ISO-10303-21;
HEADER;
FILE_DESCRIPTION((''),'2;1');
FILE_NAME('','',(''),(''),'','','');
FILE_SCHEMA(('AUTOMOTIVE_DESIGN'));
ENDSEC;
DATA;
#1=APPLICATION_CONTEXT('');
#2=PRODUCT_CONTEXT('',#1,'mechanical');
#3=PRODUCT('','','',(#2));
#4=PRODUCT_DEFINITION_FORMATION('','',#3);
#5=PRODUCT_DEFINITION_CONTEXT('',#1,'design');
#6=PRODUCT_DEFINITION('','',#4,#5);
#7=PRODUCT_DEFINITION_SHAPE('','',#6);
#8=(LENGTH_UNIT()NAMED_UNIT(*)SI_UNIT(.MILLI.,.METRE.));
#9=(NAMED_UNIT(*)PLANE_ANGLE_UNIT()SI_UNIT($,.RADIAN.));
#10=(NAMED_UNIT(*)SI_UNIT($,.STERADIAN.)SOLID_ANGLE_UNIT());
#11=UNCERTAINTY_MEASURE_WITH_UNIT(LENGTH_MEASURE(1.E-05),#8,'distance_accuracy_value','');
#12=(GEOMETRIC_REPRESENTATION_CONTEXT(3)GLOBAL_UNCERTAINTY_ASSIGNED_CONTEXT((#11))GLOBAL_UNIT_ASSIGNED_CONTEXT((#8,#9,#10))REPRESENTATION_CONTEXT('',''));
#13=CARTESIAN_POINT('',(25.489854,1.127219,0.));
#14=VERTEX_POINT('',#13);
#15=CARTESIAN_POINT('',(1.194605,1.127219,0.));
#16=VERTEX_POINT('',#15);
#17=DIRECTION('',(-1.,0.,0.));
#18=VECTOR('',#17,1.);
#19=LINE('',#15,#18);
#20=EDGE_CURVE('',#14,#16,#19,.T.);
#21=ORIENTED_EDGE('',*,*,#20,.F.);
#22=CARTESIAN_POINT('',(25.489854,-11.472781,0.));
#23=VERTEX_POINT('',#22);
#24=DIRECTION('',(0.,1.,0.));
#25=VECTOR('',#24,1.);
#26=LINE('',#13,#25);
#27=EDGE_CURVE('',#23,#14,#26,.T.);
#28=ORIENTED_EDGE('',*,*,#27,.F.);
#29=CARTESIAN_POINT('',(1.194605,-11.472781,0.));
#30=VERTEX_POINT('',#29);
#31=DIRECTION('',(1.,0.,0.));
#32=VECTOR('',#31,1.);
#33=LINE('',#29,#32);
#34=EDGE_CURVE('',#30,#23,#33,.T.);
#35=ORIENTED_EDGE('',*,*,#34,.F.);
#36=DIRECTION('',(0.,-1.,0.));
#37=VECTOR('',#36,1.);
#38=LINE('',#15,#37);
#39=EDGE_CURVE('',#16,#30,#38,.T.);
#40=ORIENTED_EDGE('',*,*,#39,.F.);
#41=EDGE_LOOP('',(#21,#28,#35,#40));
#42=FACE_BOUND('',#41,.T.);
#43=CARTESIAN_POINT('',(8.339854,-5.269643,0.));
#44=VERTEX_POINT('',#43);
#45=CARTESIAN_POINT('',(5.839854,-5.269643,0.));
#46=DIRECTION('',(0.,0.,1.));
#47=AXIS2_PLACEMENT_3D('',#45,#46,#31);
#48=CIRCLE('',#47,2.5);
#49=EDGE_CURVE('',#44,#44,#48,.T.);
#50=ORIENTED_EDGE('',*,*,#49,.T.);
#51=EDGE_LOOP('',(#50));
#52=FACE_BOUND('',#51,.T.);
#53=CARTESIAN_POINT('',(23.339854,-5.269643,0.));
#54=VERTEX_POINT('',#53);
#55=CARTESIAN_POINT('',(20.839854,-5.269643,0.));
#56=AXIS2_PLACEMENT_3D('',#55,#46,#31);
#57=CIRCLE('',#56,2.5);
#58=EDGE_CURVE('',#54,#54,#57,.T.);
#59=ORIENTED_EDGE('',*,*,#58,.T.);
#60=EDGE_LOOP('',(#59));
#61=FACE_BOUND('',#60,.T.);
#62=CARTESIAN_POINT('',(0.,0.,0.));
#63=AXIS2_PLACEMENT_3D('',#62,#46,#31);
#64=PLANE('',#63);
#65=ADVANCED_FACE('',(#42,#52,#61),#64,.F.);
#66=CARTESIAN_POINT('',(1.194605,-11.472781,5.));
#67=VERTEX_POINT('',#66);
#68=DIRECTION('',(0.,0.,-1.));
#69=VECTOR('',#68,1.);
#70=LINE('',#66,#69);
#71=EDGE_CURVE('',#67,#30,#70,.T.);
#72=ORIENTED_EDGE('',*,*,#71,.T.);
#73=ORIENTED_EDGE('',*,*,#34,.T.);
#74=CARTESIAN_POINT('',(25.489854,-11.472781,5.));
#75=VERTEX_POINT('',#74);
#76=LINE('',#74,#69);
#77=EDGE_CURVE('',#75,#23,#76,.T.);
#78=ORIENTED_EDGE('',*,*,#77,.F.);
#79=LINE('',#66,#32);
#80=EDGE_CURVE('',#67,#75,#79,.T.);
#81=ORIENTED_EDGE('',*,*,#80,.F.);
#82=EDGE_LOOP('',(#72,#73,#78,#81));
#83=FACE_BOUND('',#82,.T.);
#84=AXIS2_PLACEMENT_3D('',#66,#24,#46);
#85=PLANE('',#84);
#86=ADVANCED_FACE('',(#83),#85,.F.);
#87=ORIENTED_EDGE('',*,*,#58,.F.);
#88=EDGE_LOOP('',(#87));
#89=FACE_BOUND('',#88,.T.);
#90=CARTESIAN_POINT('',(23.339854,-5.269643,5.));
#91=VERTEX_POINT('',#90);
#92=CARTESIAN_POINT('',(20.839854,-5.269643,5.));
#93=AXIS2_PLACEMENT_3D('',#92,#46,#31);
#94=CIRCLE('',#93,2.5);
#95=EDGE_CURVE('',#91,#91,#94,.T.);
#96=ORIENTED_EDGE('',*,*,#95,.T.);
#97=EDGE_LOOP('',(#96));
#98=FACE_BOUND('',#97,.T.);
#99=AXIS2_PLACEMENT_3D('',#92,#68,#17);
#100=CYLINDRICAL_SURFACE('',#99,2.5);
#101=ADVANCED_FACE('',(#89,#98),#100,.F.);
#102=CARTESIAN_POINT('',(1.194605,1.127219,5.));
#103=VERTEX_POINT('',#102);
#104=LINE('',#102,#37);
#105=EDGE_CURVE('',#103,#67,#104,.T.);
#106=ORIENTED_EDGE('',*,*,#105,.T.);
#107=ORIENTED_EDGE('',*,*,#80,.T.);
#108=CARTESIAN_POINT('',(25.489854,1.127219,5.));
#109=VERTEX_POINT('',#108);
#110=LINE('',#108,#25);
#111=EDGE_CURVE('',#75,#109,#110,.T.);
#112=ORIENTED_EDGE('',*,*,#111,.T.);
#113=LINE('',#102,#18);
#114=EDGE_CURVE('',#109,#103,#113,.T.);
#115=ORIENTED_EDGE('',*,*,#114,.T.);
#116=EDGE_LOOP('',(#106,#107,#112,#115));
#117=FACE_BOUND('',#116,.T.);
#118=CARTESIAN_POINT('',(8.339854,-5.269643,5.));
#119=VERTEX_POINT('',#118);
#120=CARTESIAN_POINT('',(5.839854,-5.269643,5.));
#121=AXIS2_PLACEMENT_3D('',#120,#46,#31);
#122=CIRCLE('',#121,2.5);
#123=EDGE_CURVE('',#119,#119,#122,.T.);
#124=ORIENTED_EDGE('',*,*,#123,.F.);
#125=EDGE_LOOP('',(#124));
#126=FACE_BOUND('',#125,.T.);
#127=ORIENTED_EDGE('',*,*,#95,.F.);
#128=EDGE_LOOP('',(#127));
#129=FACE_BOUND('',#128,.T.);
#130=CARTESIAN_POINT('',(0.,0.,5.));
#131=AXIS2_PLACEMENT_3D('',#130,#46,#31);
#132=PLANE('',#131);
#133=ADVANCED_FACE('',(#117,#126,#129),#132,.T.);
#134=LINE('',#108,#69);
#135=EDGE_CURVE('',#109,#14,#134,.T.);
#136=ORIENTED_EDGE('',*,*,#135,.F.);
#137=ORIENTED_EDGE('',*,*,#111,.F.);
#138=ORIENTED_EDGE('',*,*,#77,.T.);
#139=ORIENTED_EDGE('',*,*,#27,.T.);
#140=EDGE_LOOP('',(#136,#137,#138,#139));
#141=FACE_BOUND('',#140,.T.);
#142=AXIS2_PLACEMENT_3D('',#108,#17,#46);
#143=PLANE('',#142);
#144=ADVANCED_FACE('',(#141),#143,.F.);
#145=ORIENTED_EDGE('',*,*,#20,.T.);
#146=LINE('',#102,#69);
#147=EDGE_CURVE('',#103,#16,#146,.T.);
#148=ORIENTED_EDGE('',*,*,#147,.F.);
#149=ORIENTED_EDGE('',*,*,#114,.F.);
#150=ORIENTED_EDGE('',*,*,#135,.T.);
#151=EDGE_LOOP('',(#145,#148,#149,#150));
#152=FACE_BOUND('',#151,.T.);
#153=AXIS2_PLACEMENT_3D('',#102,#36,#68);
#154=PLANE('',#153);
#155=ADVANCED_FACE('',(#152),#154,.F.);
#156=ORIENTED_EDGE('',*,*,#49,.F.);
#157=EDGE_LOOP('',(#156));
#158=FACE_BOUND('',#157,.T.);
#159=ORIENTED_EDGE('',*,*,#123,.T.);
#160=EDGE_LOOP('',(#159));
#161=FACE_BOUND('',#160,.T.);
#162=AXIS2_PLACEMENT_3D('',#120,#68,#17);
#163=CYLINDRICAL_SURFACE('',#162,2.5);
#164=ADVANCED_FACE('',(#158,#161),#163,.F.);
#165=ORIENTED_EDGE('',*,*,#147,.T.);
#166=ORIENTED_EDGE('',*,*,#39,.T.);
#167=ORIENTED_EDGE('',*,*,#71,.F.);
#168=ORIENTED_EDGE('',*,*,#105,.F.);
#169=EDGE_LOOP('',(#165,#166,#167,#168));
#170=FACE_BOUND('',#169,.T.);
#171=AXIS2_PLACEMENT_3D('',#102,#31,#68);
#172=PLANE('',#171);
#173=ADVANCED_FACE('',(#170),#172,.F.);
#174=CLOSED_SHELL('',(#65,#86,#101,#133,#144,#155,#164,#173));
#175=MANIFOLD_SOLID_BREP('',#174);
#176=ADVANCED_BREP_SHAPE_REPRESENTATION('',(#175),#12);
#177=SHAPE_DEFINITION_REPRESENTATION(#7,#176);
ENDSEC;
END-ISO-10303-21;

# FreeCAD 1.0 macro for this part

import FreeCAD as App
import Part
import Sketcher
from FreeCAD import Vector


def add_polygon(sketch, points):
    """Adds a closed chain of lines whose ends are joined by coincident constraints."""
    first, n = sketch.GeometryCount, len(points)
    for a, b in zip(points, points[1:] + points[:1]):
        sketch.addGeometry(Part.LineSegment(App.Vector(*a, 0), App.Vector(*b, 0)), False)
    for i in range(n):
        sketch.addConstraint(Sketcher.Constraint("Coincident", first + i, 2, first + (i + 1) % n, 1))

doc = App.newDocument("Part")
body = doc.addObject("PartDesign::Body", "Body")

# Sketch on XY plane
sketch1 = body.newObject("Sketcher::SketchObject", "Sketch")
sketch1.AttachmentSupport = (doc.getObject("XY_Plane"), [""])
sketch1.MapMode = "FlatFace"
add_polygon(sketch1, [(1.2, 1.1), (1.2, -11.5), (25.5, -11.5), (25.5, 1.1)])  # lines 0-3
sketch1.addGeometry(Part.Circle(Vector(5.8, -5.3, 0), Vector(0, 0, 1), 2.5), False)  # 4
sketch1.addGeometry(Part.Circle(Vector(20.8, -5.3, 0), Vector(0, 0, 1), 2.5), False)  # 5
sketch1.addConstraint(Sketcher.Constraint("Vertical", 0))
sketch1.addConstraint(Sketcher.Constraint("Horizontal", 1))
sketch1.addConstraint(Sketcher.Constraint("Vertical", 2))
sketch1.addConstraint(Sketcher.Constraint("Horizontal", 3))
sketch1.addConstraint(Sketcher.Constraint("Equal", 4, 5))
sketch1.addConstraint(Sketcher.Constraint("Horizontal", 4, 3, 5, 3))
sketch1.addConstraint(Sketcher.Constraint("Diameter", 4, 5.0))
sketch1.addConstraint(Sketcher.Constraint("DistanceY", 0, 2, 0, 1, 12.6))
sketch1.addConstraint(Sketcher.Constraint("DistanceX", 4, 3, 5, 3, 15.0))
sketch1.addConstraint(Sketcher.Constraint("DistanceX", 5, 3, 1, 2, 4.65))
sketch1.addConstraint(Sketcher.Constraint("DistanceX", 1, 1, 1, 2, 24.295249))
sketch1.addConstraint(Sketcher.Constraint("DistanceY", 0, 2, -1, 1, 11.472781))
sketch1.addConstraint(Sketcher.Constraint("DistanceY", 0, 2, 4, 3, 6.203138))
sketch1.addConstraint(Sketcher.Constraint("DistanceX", -1, 1, 4, 3, 5.839854))
pad1 = body.newObject("PartDesign::Pad", "Pad")
pad1.Profile = sketch1
pad1.Length = 5

doc.recompute()
